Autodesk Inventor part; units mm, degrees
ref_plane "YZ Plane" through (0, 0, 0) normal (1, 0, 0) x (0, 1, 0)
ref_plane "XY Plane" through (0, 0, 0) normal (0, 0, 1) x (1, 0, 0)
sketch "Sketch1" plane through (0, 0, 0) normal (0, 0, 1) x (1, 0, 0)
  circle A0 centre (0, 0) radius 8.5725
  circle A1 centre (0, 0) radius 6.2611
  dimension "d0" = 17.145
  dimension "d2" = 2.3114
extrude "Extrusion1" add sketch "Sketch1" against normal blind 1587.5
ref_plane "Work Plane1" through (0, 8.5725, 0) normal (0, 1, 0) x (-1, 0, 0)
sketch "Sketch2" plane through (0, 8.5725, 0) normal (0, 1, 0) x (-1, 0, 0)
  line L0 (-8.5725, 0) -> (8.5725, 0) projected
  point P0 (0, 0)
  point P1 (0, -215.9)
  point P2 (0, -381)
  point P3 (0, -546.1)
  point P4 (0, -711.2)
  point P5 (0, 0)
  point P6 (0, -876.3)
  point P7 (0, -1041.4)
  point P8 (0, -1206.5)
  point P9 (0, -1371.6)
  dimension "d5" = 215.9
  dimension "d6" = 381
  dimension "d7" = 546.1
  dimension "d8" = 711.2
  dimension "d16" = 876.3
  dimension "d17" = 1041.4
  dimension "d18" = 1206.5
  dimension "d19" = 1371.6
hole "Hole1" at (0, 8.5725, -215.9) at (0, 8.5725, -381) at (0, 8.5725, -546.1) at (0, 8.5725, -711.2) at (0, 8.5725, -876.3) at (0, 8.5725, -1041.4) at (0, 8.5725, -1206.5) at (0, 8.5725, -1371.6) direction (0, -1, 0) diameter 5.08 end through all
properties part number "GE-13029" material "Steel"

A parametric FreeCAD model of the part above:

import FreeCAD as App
import Part
import Sketcher
from FreeCAD import Vector
Q = App.Units.Quantity

doc = App.newDocument("Part")
body = doc.addObject("PartDesign::Body", "Body")

sketch1 = body.newObject("Sketcher::SketchObject", "Sketch")
sketch1.AttachmentSupport = (doc.getObject("XY_Plane"), [""])
sketch1.MapMode = "FlatFace"
sketch1.addGeometry([
    Part.Circle(Vector(0, 0, 0), Vector(0, 0, 1), 9),
    Part.Circle(Vector(0, 0, 0), Vector(0, 0, 1), 6),
], False)
sketch1.addConstraint([
    Sketcher.Constraint("Coincident", 0, 3, -1, 1),
    Sketcher.Constraint("Coincident", 1, 3, -1, 1),
    Sketcher.Constraint("Diameter", 0, Q("0.675 in")),
    Sketcher.Constraint("Diameter", 1, Q("0.493 in")),
])
pad1 = body.newObject("PartDesign::Pad", "Pad")
pad1.Profile = sketch1
pad1.Length = Q("62.5 in")
pad1.Reversed = True

sketch2 = body.newObject("Sketcher::SketchObject", "Sketch001")
sketch2.AttachmentSupport = (doc.getObject("XZ_Plane"), [""])
sketch2.MapMode = "FlatFace"
sketch2.AttachmentOffset = App.Placement(Vector(0, 0, -0.3375 * 25.4), App.Rotation())
sketch2.addGeometry([
    Part.Circle(Vector(0, -215.9, 0), Vector(0, 0, 1), 2.5),
    Part.Circle(Vector(0, -381, 0), Vector(0, 0, 1), 2.5),
    Part.Circle(Vector(0, -546.1, 0), Vector(0, 0, 1), 2.5),
    Part.Circle(Vector(0, -711.2, 0), Vector(0, 0, 1), 2.5),
    Part.Circle(Vector(0, -876.3, 0), Vector(0, 0, 1), 2.5),
    Part.Circle(Vector(0, -1041.4, 0), Vector(0, 0, 1), 2.5),
    Part.Circle(Vector(0, -1206.5, 0), Vector(0, 0, 1), 2.5),
    Part.Circle(Vector(0, -1371.6, 0), Vector(0, 0, 1), 2.5),
], False)
sketch2.addConstraint([
    Sketcher.Constraint("Equal", 0, 1),
    Sketcher.Constraint("Equal", 1, 2),
    Sketcher.Constraint("Equal", 2, 3),
    Sketcher.Constraint("Equal", 3, 4),
    Sketcher.Constraint("Equal", 4, 5),
    Sketcher.Constraint("Equal", 5, 6),
    Sketcher.Constraint("Equal", 6, 7),
    Sketcher.Constraint("PointOnObject", 0, 3, -2),
    Sketcher.Constraint("PointOnObject", 1, 3, -2),
    Sketcher.Constraint("PointOnObject", 2, 3, -2),
    Sketcher.Constraint("PointOnObject", 3, 3, -2),
    Sketcher.Constraint("PointOnObject", 4, 3, -2),
    Sketcher.Constraint("PointOnObject", 5, 3, -2),
    Sketcher.Constraint("PointOnObject", 6, 3, -2),
    Sketcher.Constraint("PointOnObject", 7, 3, -2),
    Sketcher.Constraint("Diameter", 0, Q("0.2 in")),
    Sketcher.Constraint("DistanceY", 1, 3, -1, 1, Q("15 in")),
    Sketcher.Constraint("DistanceY", 3, 3, -1, 1, Q("28 in")),
    Sketcher.Constraint("DistanceY", 5, 3, -1, 1, Q("41 in")),
    Sketcher.Constraint("DistanceY", 7, 3, -1, 1, Q("54 in")),
    Sketcher.Constraint("DistanceY", 2, 3, 0, 3, Q("13 in")),
    Sketcher.Constraint("DistanceY", 4, 3, 2, 3, Q("13 in")),
    Sketcher.Constraint("DistanceY", 6, 3, 4, 3, Q("13 in")),
    Sketcher.Constraint("DistanceY", 0, 3, -1, 1, Q("8.5 in")),
])
doc.recompute()
hole = body.newObject("PartDesign::Hole", "Hole")
hole.Profile = sketch2
hole.ThreadType = "None"
hole.Diameter = Q("0.2 in")
hole.DepthType = "ThroughAll"
hole.Reversed = True

doc.recompute()
